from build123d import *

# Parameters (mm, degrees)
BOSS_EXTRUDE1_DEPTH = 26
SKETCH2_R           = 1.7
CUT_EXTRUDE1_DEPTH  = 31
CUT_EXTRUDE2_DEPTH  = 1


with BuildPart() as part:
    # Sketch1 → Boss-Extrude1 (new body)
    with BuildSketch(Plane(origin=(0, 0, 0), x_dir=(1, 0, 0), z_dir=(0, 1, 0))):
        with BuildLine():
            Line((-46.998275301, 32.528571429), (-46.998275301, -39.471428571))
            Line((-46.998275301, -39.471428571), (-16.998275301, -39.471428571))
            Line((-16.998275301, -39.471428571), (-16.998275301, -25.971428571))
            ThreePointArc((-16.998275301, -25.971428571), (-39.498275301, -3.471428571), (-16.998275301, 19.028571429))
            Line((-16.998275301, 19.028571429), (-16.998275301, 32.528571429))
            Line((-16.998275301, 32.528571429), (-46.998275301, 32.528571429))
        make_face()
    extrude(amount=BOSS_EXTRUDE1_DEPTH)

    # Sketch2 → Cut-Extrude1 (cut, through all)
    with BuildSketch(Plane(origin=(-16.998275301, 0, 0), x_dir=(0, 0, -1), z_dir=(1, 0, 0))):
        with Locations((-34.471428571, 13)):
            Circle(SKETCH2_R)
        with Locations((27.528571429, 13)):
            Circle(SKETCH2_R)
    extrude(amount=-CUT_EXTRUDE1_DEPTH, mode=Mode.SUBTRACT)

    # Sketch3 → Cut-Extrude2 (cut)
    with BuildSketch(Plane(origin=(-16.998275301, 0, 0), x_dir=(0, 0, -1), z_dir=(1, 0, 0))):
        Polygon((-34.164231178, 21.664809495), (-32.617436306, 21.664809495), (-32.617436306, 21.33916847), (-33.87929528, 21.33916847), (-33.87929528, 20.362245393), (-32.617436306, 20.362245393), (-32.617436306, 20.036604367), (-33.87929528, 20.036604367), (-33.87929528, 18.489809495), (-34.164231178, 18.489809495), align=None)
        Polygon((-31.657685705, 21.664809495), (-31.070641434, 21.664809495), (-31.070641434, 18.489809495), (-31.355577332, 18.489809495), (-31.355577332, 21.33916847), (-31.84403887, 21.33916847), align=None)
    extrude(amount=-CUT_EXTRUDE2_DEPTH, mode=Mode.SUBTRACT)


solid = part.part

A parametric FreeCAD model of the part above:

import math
import FreeCAD as App
import Part
import Sketcher
Q = App.Units.Quantity

doc = App.newDocument("Part")
params = doc.addObject("Spreadsheet::Sheet", "Params")
for row, (alias, value) in enumerate([
    ("sketch1_radius", "22.5 mm"),
    ("sketch1_width", "30 mm"),
    ("sketch1_height", "72 mm"),
    ("pad1_length", "26 mm"),
    ("sketch2_diameter", "3.4 mm"),
    ("pocket2_length", "1 mm"),
], start=1):
    params.set(f"A{row}", alias)
    params.set(f"B{row}", "=" + value)
    params.setAlias(f"B{row}", alias)

body = doc.addObject("PartDesign::Body", "Body")

# Sketch on XZ plane
sketch1 = body.newObject("Sketcher::SketchObject", "Sketch")
sketch1.AttachmentSupport = (doc.getObject("XZ_Plane"), [""])
sketch1.MapMode = "FlatFace"
sketch1.addGeometry([
    Part.LineSegment(App.Vector(-47, -33, 0), App.Vector(-47, 39, 0)),  # 0
    Part.LineSegment(App.Vector(-47, 39, 0), App.Vector(-17, 39, 0)),  # 1
    Part.LineSegment(App.Vector(-17, 39, 0), App.Vector(-17, 26, 0)),  # 2
    Part.ArcOfCircle(Part.Circle(App.Vector(-17, 3, 0), App.Vector(0, 0, 1), 22), math.radians(90), math.radians(270)),  # 3
    Part.LineSegment(App.Vector(-17, -19, 0), App.Vector(-17, -33, 0)),  # 4
    Part.LineSegment(App.Vector(-17, -33, 0), App.Vector(-47, -33, 0)),  # 5
], False)
sketch1.addConstraint([
    Sketcher.Constraint("Coincident", 0, 2, 1, 1),
    Sketcher.Constraint("Coincident", 1, 2, 2, 1),
    Sketcher.Constraint("Coincident", 2, 2, 3, 1),
    Sketcher.Constraint("Coincident", 3, 2, 4, 1),
    Sketcher.Constraint("Coincident", 4, 2, 5, 1),
    Sketcher.Constraint("Coincident", 5, 2, 0, 1),
    Sketcher.Constraint("Vertical", 0),
    Sketcher.Constraint("Horizontal", 1),
    Sketcher.Constraint("Vertical", 2),
    Sketcher.Constraint("Vertical", 4),
    Sketcher.Constraint("Horizontal", 5),
    Sketcher.Constraint("Vertical", 3, 3, 1, 2),
    Sketcher.Constraint("Vertical", 2, 2, 3, 2),
    Sketcher.Constraint("Equal", 2, 4),
    Sketcher.Constraint("Radius", 3, Q("22.5 mm")),
    Sketcher.Constraint("DistanceX", 1, 1, 1, 2, Q("30 mm")),
    Sketcher.Constraint("DistanceY", 0, 1, 0, 2, Q("72 mm")),
    Sketcher.Constraint("DistanceY", -1, 1, 3, 3, Q("3.471429 mm")),
    Sketcher.Constraint("DistanceX", 3, 3, -1, 1, Q("16.998275 mm")),
])
sketch1.setExpression("Constraints[14]", "Params.sketch1_radius")
sketch1.setExpression("Constraints[15]", "Params.sketch1_width")
sketch1.setExpression("Constraints[16]", "Params.sketch1_height")
pad1 = body.newObject("PartDesign::Pad", "Pad")
pad1.Profile = sketch1
pad1.setExpression("Length", "Params.pad1_length")
pad1.Reversed = True

# Sketch on YZ plane
sketch2 = body.newObject("Sketcher::SketchObject", "Sketch001")
sketch2.AttachmentSupport = (doc.getObject("YZ_Plane"), [""])
sketch2.MapMode = "FlatFace"
sketch2.AttachmentOffset = App.Placement(App.Vector(0, 0, -16.998275), App.Rotation())
sketch2.addGeometry([
    Part.Circle(App.Vector(13, 34.5, 0), App.Vector(0, 0, 1), 1.7),
    Part.Circle(App.Vector(13, -27.5, 0), App.Vector(0, 0, 1), 1.7),
], False)
sketch2.addConstraint([
    Sketcher.Constraint("Equal", 0, 1),
    Sketcher.Constraint("Vertical", 0, 3, 1, 3),
    Sketcher.Constraint("Diameter", 0, Q("3.4 mm")),
    Sketcher.Constraint("DistanceX", -1, 1, 0, 3, Q("13 mm")),
    Sketcher.Constraint("DistanceY", 1, 3, 0, 3, Q("62 mm")),
    Sketcher.Constraint("DistanceY", -1, 1, 0, 3, Q("34.471429 mm")),
])
sketch2.setExpression("Constraints[2]", "Params.sketch2_diameter")
pocket1 = body.newObject("PartDesign::Pocket", "Pocket")
pocket1.Profile = sketch2
pocket1.Type = "ThroughAll"

# Sketch on YZ plane
sketch3 = body.newObject("Sketcher::SketchObject", "Sketch002")
sketch3.AttachmentSupport = (doc.getObject("YZ_Plane"), [""])
sketch3.MapMode = "FlatFace"
sketch3.AttachmentOffset = App.Placement(App.Vector(0, 0, -16.998275), App.Rotation())
sketch3.addGeometry([
    Part.LineSegment(App.Vector(21.66, 32.62, 0), App.Vector(21.66, 34.16, 0)),  # 0
    Part.LineSegment(App.Vector(21.66, 34.16, 0), App.Vector(18.49, 34.16, 0)),  # 1
    Part.LineSegment(App.Vector(18.49, 34.16, 0), App.Vector(18.49, 33.88, 0)),  # 2
    Part.LineSegment(App.Vector(18.49, 33.88, 0), App.Vector(20.04, 33.88, 0)),  # 3
    Part.LineSegment(App.Vector(20.04, 33.88, 0), App.Vector(20.04, 32.62, 0)),  # 4
    Part.LineSegment(App.Vector(20.04, 32.62, 0), App.Vector(20.36, 32.62, 0)),  # 5
    Part.LineSegment(App.Vector(20.36, 32.62, 0), App.Vector(20.36, 33.88, 0)),  # 6
    Part.LineSegment(App.Vector(20.36, 33.88, 0), App.Vector(21.34, 33.88, 0)),  # 7
    Part.LineSegment(App.Vector(21.34, 33.88, 0), App.Vector(21.34, 32.62, 0)),  # 8
    Part.LineSegment(App.Vector(21.34, 32.62, 0), App.Vector(21.66, 32.62, 0)),  # 9
    Part.LineSegment(App.Vector(21.66, 31.07, 0), App.Vector(21.66, 31.66, 0)),  # 10
    Part.LineSegment(App.Vector(21.66, 31.66, 0), App.Vector(21.34, 31.84, 0)),  # 11
    Part.LineSegment(App.Vector(21.34, 31.84, 0), App.Vector(21.34, 31.36, 0)),  # 12
    Part.LineSegment(App.Vector(21.34, 31.36, 0), App.Vector(18.49, 31.36, 0)),  # 13
    Part.LineSegment(App.Vector(18.49, 31.36, 0), App.Vector(18.49, 31.07, 0)),  # 14
    Part.LineSegment(App.Vector(18.49, 31.07, 0), App.Vector(21.66, 31.07, 0)),  # 15
], False)
sketch3.addConstraint([
    Sketcher.Constraint("Coincident", 0, 2, 1, 1),
    Sketcher.Constraint("Coincident", 1, 2, 2, 1),
    Sketcher.Constraint("Coincident", 2, 2, 3, 1),
    Sketcher.Constraint("Coincident", 3, 2, 4, 1),
    Sketcher.Constraint("Coincident", 4, 2, 5, 1),
    Sketcher.Constraint("Coincident", 5, 2, 6, 1),
    Sketcher.Constraint("Coincident", 6, 2, 7, 1),
    Sketcher.Constraint("Coincident", 7, 2, 8, 1),
    Sketcher.Constraint("Coincident", 8, 2, 9, 1),
    Sketcher.Constraint("Coincident", 9, 2, 0, 1),
    Sketcher.Constraint("Coincident", 10, 2, 11, 1),
    Sketcher.Constraint("Coincident", 11, 2, 12, 1),
    Sketcher.Constraint("Coincident", 12, 2, 13, 1),
    Sketcher.Constraint("Coincident", 13, 2, 14, 1),
    Sketcher.Constraint("Coincident", 14, 2, 15, 1),
    Sketcher.Constraint("Coincident", 15, 2, 10, 1),
    Sketcher.Constraint("Vertical", 0),
    Sketcher.Constraint("Horizontal", 1),
    Sketcher.Constraint("Vertical", 2),
    Sketcher.Constraint("Horizontal", 3),
    Sketcher.Constraint("Vertical", 4),
    Sketcher.Constraint("Horizontal", 5),
    Sketcher.Constraint("Vertical", 6),
    Sketcher.Constraint("Horizontal", 7),
    Sketcher.Constraint("Vertical", 8),
    Sketcher.Constraint("Horizontal", 9),
    Sketcher.Constraint("Vertical", 10),
    Sketcher.Constraint("Vertical", 12),
    Sketcher.Constraint("Horizontal", 13),
    Sketcher.Constraint("Vertical", 14),
    Sketcher.Constraint("Horizontal", 15),
    Sketcher.Constraint("Horizontal", 3, 2, 6, 2),
    Sketcher.Constraint("Horizontal", 5, 2, 8, 2),
    Sketcher.Constraint("Vertical", 9, 2, 10, 2),
    Sketcher.Constraint("Vertical", 8, 2, 11, 2),
    Sketcher.Constraint("Vertical", 2, 2, 13, 2),
    Sketcher.Constraint("Equal", 5, 9),
    Sketcher.Constraint("Equal", 3, 0),
    Sketcher.Constraint("Equal", 2, 14),
    Sketcher.Constraint("DistanceX", 1, 2, 1, 1, Q("3.175 mm")),
    Sketcher.Constraint("DistanceX", 5, 1, 5, 2, Q("0.325641 mm")),
    Sketcher.Constraint("DistanceY", 4, 2, 4, 1, Q("1.261859 mm")),
    Sketcher.Constraint("DistanceY", 12, 2, 12, 1, Q("0.488462 mm")),
    Sketcher.Constraint("DistanceX", 3, 1, 3, 2, Q("1.546795 mm")),
    Sketcher.Constraint("DistanceY", 10, 1, 10, 2, Q("0.587044 mm")),
    Sketcher.Constraint("DistanceX", -1, 1, 0, 2, Q("21.664809 mm")),
    Sketcher.Constraint("DistanceY", -1, 1, 0, 2, Q("34.164231 mm")),
    Sketcher.Constraint("DistanceY", -1, 1, 11, 2, Q("31.844039 mm")),
])
pocket2 = body.newObject("PartDesign::Pocket", "Pocket001")
pocket2.Profile = sketch3
pocket2.setExpression("Length", "Params.pocket2_length")

doc.recompute()
